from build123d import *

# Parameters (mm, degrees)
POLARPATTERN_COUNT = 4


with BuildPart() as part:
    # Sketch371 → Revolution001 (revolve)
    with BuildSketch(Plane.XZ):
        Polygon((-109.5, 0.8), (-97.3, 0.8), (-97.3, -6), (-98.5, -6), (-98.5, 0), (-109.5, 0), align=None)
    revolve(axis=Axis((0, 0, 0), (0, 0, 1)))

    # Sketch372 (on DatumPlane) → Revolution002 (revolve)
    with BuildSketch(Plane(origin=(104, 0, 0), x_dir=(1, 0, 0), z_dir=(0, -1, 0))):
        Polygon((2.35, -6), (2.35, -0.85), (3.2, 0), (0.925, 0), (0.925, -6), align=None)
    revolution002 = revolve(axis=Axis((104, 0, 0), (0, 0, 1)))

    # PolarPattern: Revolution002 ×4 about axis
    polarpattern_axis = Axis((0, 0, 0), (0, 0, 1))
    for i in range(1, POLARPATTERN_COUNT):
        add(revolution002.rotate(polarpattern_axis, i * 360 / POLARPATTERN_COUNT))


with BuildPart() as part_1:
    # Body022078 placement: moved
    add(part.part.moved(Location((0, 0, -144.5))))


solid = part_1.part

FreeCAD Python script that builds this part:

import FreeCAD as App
import Part
import Sketcher
from FreeCAD import Vector
Q = App.Units.Quantity


def add_polygon(sketch, points):
    """Adds a closed chain of lines whose ends are joined by coincident constraints."""
    first, n = sketch.GeometryCount, len(points)
    for a, b in zip(points, points[1:] + points[:1]):
        sketch.addGeometry(Part.LineSegment(App.Vector(*a, 0), App.Vector(*b, 0)), False)
    for i in range(n):
        sketch.addConstraint(Sketcher.Constraint("Coincident", first + i, 2, first + (i + 1) % n, 1))

doc = App.newDocument("Part")
body = doc.addObject("PartDesign::Body", "Body")

# Sketch on XZ plane
sketch1 = body.newObject("Sketcher::SketchObject", "Sketch")
sketch1.AttachmentSupport = (doc.getObject("XZ_Plane"), [""])
sketch1.MapMode = "FlatFace"
add_polygon(sketch1, [(-97.3, 0.8), (-109.5, 0.8), (-109.5, 0), (-98.5, 0), (-98.5, -6), (-97.3, -6)])  # lines 0-5
sketch1.addConstraint([
    Sketcher.Constraint("Horizontal", 0),
    Sketcher.Constraint("Vertical", 1),
    Sketcher.Constraint("Horizontal", 2),
    Sketcher.Constraint("Vertical", 3),
    Sketcher.Constraint("Horizontal", 4),
    Sketcher.Constraint("Vertical", 5),
    Sketcher.Constraint("PointOnObject", 1, 2, -1),
    Sketcher.Constraint("DistanceX", 2, 1, 2, 2, 11.0),
    Sketcher.Constraint("DistanceY", 3, 2, 3, 1, 6.0),
    Sketcher.Constraint("DistanceX", 0, 2, 0, 1, 12.2),
    Sketcher.Constraint("DistanceY", 1, 2, 1, 1, 0.8),
    Sketcher.Constraint("DistanceX", 0, 2, -1, 1, 109.5),
])
revolution = body.newObject("PartDesign::Revolution", "Revolution")
revolution.Profile = sketch1
revolution.ReferenceAxis = (sketch1, ["V_Axis"])
revolution.Angle = 360

# Sketch on XZ plane
sketch2 = body.newObject("Sketcher::SketchObject", "Sketch001")
sketch2.AttachmentSupport = (doc.getObject("XZ_Plane"), [""])
sketch2.MapMode = "FlatFace"
add_polygon(sketch2, [(106.3, -6), (106.3, -0.8), (107.2, 0), (104.9, 0), (104.9, -6)])  # lines 0-4
sketch2.addGeometry(Part.LineSegment(Vector(104, -6, 0), Vector(104, 0, 0)), True)  # axis
sketch2.addConstraint([
    Sketcher.Constraint("Vertical", 0),
    Sketcher.Constraint("Horizontal", 2),
    Sketcher.Constraint("Vertical", 3),
    Sketcher.Constraint("Horizontal", 4),
    Sketcher.Constraint("Vertical", 5),
    Sketcher.Constraint("PointOnObject", 1, 2, -1),
    Sketcher.Constraint("PointOnObject", 5, 2, -1),
    Sketcher.Constraint("Horizontal", 4, 2, 5, 1),
    Sketcher.Constraint("DistanceY", 3, 2, 3, 1, 6.0),
    Sketcher.Constraint("Angle", 1, Q("45 deg")),
    Sketcher.Constraint("DistanceX", -1, 1, 5, 1, 104.0),
    Sketcher.Constraint("DistanceY", 0, 1, 0, 2, 5.15),
    Sketcher.Constraint("DistanceX", -1, 1, 1, 2, 107.2),
    Sketcher.Constraint("DistanceX", 2, 2, 2, 1, 2.275),
])
revolution2 = body.newObject("PartDesign::Revolution", "Revolution001")
revolution2.Profile = sketch2
revolution2.ReferenceAxis = (sketch2, ["Axis0"])
revolution2.Angle = 360
doc.recompute()

polarpattern = body.newObject("PartDesign::PolarPattern", "PolarPattern")
polarpattern.Originals = [revolution2]
polarpattern.Axis = (doc.getObject("Z_Axis"), [""])
polarpattern.Angle = 360
polarpattern.Occurrences = 4
body.Tip = polarpattern
body2 = doc.addObject("PartDesign::Body", "Body001")
doc.recompute()

body.Placement = App.Placement(Vector(0, 0, -144.5), App.Rotation(Vector(0, 0, 1), 0))
boolean = body2.newObject("PartDesign::Boolean", "Boolean")
boolean.Type = "Fuse"
boolean.addObjects([body])

doc.recompute()
